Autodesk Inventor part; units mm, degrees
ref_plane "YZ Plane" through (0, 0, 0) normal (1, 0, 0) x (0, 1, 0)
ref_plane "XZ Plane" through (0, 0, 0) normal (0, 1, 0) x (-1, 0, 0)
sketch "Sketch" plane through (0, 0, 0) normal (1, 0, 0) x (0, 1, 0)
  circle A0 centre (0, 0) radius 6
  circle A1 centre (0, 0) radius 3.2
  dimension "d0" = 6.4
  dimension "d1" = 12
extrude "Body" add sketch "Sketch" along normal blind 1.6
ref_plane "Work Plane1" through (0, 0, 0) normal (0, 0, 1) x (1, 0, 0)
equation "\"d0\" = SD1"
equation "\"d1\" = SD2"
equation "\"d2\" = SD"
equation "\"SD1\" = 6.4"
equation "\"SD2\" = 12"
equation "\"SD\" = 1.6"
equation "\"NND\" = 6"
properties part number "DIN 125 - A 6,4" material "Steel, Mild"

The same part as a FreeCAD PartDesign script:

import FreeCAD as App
import Part
import Sketcher

V = App.Vector
Q = App.Units.Quantity

doc = App.newDocument("Part")
body = doc.addObject("PartDesign::Body", "Body")

# Sketch on YZ plane
sketch1 = body.newObject("Sketcher::SketchObject", "Sketch")
sketch1.AttachmentSupport = (doc.getObject("YZ_Plane"), [""])
sketch1.MapMode = "FlatFace"
sketch1.addGeometry(Part.Circle(V(0, 0, 0), V(0, 0, 1), 6), False)
sketch1.addGeometry(Part.Circle(V(0, 0, 0), V(0, 0, 1), 3.2), False)
sketch1.addConstraint(Sketcher.Constraint("Coincident", 0, 3, -1, 1))
sketch1.addConstraint(Sketcher.Constraint("Coincident", 1, 3, -1, 1))
sketch1.addConstraint(Sketcher.Constraint("Diameter", 0, Q("12 mm")))
sketch1.addConstraint(Sketcher.Constraint("Diameter", 1, Q("6.4 mm")))
pad1 = body.newObject("PartDesign::Pad", "Pad")
pad1.Profile = sketch1
pad1.Length = 1.6

doc.recompute()
